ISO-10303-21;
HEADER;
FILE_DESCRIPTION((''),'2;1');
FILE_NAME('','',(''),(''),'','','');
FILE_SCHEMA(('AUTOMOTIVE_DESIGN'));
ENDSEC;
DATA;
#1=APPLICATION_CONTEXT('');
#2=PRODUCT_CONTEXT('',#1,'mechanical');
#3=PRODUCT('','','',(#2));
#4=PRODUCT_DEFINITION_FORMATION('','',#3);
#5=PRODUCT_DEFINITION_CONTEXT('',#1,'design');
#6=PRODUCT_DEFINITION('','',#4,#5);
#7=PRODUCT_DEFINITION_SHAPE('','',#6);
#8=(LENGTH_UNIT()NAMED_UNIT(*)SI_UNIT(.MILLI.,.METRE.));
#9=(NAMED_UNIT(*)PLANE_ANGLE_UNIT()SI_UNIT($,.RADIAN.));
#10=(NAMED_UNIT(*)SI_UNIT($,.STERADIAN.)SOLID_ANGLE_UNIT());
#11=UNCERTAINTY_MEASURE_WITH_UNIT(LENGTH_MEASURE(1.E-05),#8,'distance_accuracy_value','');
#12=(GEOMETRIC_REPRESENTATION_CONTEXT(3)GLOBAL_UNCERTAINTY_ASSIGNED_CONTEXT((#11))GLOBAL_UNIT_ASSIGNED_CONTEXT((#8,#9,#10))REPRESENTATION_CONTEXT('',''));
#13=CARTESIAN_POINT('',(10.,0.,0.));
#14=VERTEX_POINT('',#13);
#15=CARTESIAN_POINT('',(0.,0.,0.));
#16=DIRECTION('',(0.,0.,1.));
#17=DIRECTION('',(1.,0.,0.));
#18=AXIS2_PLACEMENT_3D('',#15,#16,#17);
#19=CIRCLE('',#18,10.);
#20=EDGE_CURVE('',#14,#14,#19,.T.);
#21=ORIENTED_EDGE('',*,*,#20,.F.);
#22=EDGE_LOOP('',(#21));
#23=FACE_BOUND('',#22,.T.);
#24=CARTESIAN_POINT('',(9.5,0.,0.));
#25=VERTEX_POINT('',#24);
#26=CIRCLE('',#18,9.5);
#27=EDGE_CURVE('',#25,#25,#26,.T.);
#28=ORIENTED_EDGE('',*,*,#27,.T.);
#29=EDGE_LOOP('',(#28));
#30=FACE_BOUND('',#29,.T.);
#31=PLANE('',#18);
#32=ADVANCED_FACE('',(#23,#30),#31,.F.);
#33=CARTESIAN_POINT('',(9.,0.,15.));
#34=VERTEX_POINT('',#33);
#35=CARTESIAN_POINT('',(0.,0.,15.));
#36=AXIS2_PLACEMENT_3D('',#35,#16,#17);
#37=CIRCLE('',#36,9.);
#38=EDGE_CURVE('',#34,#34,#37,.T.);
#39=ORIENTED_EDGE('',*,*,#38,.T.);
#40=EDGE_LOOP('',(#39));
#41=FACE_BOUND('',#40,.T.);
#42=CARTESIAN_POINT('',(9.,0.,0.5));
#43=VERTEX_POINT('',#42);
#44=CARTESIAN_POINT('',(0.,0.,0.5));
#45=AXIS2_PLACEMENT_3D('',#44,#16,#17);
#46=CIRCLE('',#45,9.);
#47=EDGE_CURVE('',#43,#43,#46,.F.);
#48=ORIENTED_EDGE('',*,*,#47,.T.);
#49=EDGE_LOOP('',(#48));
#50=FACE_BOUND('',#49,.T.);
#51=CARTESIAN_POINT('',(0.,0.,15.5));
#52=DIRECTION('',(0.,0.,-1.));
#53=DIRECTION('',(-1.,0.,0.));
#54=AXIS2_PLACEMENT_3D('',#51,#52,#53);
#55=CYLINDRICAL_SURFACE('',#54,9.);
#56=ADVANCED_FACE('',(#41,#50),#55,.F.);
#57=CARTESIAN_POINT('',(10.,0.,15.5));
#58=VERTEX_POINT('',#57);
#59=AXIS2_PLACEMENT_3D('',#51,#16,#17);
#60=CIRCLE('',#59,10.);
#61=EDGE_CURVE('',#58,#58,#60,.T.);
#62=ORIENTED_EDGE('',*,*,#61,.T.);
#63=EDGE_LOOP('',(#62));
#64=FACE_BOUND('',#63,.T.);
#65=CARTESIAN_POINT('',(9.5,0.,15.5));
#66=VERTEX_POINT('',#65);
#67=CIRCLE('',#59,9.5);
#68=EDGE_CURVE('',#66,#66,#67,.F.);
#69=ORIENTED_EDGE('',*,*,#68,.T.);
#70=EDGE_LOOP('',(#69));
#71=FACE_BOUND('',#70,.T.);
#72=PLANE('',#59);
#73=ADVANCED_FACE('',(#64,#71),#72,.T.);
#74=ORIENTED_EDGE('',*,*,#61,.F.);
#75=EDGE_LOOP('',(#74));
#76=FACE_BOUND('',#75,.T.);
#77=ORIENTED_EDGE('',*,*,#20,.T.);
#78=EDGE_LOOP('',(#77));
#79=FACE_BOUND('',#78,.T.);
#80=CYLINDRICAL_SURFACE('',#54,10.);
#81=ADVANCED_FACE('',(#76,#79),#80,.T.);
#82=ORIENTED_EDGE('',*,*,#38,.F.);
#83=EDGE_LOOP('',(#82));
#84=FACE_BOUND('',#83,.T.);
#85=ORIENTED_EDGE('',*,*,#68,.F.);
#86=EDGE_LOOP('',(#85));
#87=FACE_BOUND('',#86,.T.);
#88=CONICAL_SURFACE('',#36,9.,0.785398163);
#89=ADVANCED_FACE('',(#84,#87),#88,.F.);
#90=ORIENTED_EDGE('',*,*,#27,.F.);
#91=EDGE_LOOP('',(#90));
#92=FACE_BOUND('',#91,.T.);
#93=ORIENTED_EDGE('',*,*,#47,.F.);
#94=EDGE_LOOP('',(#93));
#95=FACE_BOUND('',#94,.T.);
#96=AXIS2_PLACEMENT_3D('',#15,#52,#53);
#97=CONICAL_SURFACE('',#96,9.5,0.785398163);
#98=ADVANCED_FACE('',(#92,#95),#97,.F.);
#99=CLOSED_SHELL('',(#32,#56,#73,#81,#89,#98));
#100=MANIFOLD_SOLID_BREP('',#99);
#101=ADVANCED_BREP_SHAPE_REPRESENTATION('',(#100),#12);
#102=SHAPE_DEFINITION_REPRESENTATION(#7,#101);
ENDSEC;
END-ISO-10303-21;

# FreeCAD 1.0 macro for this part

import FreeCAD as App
import Part
import Sketcher
from FreeCAD import Vector
Q = App.Units.Quantity


def edges_at(feature, points):
    """Names of the edges that pass closest to the given points."""
    edges = feature.Shape.Edges
    near = lambda p: min(range(len(edges)), key=lambda i: edges[i].distToShape(Part.Vertex(*p))[0])
    return sorted({f"Edge{near(p) + 1}" for p in points})

doc = App.newDocument("Part")
body = doc.addObject("PartDesign::Body", "Body")

# Sketch on XY plane
sketch1 = doc.addObject("Sketcher::SketchObject", "Sketch")
body.addObject(sketch1)
sketch1.AttachmentSupport = (doc.XY_Plane, [""])
sketch1.MapMode = "FlatFace"
sketch1.addGeometry([
    Part.Circle(Vector(0, 0, 0), Vector(0, 0, 1), 10),
    Part.Circle(Vector(0, 0, 0), Vector(0, 0, 1), 9),
], False)
sketch1.addConstraint([
    Sketcher.Constraint("Coincident", 0, 3, -1, 1),
    Sketcher.Constraint("Coincident", 1, 3, -1, 1),
    Sketcher.Constraint("Diameter", 0, Q("20 mm")),
    Sketcher.Constraint("Diameter", 1, Q("18 mm")),
])
pad1 = doc.addObject("PartDesign::Pad", "Pad")
body.addObject(pad1)
pad1.Profile = sketch1
pad1.Length = 15.5
doc.recompute()

chamfer = doc.addObject("PartDesign::Chamfer", "Chamfer")
body.addObject(chamfer)
chamfer.Base = (pad1, edges_at(pad1, [(-9, 0, 0), (-9, 0, 15.5)]))
chamfer.Size = 0.5

doc.recompute()
